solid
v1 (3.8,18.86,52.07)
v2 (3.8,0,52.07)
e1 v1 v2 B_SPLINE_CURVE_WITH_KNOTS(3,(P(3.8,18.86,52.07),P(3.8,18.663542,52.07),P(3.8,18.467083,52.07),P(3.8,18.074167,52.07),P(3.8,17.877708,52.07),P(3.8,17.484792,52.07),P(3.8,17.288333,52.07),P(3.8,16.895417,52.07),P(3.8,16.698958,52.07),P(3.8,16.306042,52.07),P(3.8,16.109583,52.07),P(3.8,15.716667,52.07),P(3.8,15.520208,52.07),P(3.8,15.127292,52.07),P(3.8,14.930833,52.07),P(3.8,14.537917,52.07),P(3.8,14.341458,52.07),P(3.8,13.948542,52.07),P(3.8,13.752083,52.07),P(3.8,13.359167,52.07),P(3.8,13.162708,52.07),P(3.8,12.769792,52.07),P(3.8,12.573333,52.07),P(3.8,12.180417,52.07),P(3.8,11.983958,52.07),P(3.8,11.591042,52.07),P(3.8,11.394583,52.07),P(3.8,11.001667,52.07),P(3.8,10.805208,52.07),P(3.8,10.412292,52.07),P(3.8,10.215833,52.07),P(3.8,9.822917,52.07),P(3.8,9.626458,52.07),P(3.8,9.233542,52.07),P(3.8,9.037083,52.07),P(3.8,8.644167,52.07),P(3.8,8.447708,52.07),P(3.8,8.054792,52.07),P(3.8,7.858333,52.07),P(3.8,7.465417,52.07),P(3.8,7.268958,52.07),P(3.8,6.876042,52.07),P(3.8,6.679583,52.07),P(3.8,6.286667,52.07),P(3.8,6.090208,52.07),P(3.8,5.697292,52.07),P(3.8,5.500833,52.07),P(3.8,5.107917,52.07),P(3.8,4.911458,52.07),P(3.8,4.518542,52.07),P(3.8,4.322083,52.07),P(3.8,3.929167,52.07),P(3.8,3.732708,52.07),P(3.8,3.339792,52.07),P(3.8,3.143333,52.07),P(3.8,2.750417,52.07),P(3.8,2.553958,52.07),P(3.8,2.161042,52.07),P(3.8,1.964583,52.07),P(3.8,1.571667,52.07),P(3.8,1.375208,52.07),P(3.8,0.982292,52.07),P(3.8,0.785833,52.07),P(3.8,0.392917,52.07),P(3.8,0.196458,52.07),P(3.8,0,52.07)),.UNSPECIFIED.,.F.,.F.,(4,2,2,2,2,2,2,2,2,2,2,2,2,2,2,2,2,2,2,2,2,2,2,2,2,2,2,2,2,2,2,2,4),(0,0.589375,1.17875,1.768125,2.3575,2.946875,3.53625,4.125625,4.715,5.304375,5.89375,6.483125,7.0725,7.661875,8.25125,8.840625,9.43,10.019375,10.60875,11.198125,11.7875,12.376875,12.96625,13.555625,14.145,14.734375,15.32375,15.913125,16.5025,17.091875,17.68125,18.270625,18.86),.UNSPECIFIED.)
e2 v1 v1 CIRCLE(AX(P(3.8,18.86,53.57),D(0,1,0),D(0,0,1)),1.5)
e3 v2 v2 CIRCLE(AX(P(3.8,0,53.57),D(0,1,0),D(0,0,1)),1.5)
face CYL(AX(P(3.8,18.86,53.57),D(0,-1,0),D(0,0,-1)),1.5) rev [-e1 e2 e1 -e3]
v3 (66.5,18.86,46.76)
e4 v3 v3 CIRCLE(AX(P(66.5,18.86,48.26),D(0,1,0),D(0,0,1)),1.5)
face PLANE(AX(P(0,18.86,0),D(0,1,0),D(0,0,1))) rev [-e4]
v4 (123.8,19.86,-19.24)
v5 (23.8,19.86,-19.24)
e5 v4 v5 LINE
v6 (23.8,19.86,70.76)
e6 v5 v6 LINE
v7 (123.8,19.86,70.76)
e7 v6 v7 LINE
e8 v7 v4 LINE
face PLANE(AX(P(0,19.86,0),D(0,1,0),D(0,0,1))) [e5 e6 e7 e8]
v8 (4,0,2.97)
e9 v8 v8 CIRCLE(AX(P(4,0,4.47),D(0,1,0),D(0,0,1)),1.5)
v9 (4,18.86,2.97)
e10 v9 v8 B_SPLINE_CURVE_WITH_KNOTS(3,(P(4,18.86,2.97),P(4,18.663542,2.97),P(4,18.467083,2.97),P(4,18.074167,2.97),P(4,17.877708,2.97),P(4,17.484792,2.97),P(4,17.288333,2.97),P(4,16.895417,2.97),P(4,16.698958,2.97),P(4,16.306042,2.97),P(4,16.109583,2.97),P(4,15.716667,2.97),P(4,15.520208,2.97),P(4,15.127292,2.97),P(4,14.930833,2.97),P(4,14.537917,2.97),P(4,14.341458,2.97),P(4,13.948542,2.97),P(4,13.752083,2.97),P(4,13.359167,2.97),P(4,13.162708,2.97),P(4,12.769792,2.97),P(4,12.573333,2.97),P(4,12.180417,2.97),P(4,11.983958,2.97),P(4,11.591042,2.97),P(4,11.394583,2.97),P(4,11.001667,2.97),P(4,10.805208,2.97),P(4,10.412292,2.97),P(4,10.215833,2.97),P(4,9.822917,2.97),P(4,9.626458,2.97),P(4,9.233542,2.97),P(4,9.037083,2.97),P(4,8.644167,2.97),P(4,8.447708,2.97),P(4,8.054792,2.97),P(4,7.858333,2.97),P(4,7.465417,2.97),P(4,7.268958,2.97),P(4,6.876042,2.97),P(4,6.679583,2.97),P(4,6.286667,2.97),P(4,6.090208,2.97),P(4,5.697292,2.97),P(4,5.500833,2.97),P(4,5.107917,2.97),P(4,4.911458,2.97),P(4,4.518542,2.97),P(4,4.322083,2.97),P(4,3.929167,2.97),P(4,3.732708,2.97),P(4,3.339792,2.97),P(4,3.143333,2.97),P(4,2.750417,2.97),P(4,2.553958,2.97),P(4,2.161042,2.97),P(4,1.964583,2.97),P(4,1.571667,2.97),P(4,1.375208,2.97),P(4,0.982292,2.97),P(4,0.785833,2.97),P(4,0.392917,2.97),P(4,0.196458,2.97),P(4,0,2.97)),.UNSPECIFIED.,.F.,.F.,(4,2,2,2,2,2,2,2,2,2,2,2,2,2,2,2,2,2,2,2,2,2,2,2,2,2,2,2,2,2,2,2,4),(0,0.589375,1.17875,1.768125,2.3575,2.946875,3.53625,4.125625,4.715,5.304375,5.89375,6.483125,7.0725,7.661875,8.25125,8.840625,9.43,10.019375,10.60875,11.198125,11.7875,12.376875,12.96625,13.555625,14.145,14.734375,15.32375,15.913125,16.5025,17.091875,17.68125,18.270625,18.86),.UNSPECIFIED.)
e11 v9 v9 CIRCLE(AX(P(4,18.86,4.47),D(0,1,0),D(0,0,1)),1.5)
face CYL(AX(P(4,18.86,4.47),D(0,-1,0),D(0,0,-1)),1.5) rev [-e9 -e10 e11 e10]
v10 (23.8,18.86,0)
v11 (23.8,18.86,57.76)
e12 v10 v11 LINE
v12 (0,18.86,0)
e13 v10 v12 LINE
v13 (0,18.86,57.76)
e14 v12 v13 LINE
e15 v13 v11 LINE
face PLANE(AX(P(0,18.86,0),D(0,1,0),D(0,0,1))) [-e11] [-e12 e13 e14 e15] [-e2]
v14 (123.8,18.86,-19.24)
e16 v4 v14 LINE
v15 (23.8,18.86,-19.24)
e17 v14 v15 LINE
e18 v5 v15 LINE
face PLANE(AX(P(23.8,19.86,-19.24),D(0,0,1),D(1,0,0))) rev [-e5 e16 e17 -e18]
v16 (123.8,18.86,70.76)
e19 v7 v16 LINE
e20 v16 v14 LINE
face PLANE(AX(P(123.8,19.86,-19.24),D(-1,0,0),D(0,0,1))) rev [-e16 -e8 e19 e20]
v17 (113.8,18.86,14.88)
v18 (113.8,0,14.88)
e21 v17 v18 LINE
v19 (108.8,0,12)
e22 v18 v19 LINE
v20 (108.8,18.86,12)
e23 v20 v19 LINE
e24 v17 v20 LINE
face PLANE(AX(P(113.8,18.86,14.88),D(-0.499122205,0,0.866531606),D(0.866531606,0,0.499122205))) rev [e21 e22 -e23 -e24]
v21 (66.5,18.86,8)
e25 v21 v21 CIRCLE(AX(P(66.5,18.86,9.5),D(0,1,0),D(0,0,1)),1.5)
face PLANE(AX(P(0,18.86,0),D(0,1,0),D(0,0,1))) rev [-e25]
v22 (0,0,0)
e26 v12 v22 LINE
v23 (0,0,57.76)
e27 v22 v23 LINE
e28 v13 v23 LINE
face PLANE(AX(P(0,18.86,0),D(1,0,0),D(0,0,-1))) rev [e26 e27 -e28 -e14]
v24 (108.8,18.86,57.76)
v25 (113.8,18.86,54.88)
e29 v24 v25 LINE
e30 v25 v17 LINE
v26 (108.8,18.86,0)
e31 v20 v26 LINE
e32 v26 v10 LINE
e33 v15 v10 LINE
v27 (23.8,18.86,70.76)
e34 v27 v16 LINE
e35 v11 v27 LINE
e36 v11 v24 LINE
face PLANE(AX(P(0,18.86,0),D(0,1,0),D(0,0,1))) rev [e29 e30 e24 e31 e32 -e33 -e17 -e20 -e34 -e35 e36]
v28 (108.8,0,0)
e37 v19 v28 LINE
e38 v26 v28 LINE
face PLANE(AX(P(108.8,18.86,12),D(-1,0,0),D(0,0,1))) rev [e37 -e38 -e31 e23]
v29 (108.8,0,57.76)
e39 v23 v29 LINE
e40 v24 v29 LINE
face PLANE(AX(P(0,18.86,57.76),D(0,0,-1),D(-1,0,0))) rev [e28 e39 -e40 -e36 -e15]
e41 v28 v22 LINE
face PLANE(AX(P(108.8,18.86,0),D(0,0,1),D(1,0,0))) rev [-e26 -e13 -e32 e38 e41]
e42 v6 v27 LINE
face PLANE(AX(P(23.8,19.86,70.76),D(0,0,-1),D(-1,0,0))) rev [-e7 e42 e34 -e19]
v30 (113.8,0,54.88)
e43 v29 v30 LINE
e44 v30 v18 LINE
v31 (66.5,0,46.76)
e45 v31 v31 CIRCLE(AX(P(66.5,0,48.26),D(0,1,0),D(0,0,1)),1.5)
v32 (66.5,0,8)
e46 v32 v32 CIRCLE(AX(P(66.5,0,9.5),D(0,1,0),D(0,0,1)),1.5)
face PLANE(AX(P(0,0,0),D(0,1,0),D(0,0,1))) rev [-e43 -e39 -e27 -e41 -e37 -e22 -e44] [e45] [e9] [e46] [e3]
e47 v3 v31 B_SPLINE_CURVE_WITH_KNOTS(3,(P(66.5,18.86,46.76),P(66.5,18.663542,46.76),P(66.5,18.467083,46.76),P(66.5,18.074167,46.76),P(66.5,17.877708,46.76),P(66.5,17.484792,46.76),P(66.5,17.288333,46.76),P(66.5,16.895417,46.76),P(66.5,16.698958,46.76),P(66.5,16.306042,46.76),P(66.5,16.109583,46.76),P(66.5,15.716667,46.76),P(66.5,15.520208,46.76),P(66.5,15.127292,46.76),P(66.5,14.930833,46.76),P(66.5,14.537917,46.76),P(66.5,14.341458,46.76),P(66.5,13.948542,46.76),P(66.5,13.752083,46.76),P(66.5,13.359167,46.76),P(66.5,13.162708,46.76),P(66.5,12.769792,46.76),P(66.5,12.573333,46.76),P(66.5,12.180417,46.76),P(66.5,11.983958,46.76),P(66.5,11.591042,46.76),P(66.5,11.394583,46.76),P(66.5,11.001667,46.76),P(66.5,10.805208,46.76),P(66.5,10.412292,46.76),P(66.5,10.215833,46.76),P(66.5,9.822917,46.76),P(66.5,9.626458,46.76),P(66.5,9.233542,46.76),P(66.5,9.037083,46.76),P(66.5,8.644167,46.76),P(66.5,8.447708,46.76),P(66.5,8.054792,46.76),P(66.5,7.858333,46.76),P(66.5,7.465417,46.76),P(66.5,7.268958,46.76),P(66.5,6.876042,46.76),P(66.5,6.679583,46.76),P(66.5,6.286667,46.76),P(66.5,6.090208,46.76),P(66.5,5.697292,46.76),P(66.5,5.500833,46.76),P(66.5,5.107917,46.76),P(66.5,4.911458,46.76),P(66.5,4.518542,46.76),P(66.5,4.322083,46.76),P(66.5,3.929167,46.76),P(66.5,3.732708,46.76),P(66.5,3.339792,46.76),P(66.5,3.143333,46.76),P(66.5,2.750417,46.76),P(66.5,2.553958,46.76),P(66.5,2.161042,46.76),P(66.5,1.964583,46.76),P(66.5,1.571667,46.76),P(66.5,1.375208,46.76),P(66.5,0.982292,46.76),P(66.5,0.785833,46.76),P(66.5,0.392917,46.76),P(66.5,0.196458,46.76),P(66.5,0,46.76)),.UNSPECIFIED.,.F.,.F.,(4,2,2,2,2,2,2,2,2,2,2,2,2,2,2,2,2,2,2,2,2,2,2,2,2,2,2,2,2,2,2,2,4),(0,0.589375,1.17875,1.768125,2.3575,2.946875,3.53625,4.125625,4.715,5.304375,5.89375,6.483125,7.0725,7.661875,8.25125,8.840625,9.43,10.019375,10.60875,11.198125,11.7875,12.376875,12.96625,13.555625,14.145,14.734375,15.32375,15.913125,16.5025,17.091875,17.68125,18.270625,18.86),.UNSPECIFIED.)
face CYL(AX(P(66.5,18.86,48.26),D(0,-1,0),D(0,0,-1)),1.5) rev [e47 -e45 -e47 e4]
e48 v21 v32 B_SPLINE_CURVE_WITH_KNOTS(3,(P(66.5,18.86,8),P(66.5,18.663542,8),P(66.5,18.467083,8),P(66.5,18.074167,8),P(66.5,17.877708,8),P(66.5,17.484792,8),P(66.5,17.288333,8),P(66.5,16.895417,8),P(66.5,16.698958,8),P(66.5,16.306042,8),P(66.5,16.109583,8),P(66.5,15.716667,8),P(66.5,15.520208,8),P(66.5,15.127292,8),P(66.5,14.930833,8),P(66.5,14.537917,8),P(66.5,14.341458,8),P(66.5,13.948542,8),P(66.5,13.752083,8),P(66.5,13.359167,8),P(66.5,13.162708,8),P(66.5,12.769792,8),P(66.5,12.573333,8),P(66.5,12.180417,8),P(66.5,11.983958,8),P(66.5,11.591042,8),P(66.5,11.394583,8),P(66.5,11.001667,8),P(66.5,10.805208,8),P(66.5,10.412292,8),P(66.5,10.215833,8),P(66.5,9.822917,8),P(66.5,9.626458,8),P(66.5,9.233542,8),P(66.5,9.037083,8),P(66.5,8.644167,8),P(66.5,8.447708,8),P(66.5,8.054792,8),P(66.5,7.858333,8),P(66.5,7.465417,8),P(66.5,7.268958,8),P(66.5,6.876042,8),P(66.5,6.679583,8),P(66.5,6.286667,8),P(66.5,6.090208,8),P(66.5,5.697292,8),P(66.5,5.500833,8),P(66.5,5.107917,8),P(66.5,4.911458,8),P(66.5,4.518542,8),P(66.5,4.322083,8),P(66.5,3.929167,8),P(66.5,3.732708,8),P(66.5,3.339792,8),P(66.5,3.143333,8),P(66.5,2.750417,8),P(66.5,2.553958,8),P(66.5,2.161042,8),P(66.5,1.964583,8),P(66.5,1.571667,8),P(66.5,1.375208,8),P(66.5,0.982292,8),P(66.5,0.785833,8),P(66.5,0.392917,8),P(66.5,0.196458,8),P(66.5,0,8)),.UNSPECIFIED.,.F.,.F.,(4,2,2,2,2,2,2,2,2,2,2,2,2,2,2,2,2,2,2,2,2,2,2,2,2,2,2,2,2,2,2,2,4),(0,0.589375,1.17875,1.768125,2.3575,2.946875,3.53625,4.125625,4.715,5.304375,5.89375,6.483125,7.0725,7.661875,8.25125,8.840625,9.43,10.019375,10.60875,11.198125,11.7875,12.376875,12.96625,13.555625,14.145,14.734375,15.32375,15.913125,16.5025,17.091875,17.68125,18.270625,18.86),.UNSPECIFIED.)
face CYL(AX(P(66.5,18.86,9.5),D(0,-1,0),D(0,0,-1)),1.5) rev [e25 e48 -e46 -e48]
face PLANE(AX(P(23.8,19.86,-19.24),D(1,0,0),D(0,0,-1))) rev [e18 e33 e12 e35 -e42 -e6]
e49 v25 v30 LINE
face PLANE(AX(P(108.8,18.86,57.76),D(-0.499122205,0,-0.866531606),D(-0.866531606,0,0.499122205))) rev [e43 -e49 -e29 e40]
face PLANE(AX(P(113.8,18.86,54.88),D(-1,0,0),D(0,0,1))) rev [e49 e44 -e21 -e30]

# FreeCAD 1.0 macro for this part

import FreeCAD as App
import Part
import Sketcher

V = App.Vector


def add_polygon(sketch, points):
    """Adds a closed chain of lines whose ends are joined by coincident constraints."""
    first, n = sketch.GeometryCount, len(points)
    for a, b in zip(points, points[1:] + points[:1]):
        sketch.addGeometry(Part.LineSegment(App.Vector(*a, 0), App.Vector(*b, 0)), False)
    for i in range(n):
        sketch.addConstraint(Sketcher.Constraint("Coincident", first + i, 2, first + (i + 1) % n, 1))

doc = App.newDocument("Part")
body = doc.addObject("PartDesign::Body", "Body")

# Sketch on XZ plane
sketch1 = body.newObject("Sketcher::SketchObject", "Sketch")
sketch1.AttachmentSupport = (doc.getObject("XZ_Plane"), [""])
sketch1.MapMode = "FlatFace"
add_polygon(sketch1, [(0, 0), (0, 57.8), (108.8, 57.8), (113.8, 54.9), (113.8, 14.9), (108.8, 12), (108.8, 0)])  # lines 0-6
sketch1.addGeometry(Part.Circle(V(3.8, 53.6, 0), V(0, 0, 1), 1.5), False)  # 7
sketch1.addGeometry(Part.Circle(V(66.5, 48.3, 0), V(0, 0, 1), 1.5), False)  # 8
sketch1.addGeometry(Part.Circle(V(4, 4.5, 0), V(0, 0, 1), 1.5), False)  # 9
sketch1.addGeometry(Part.Circle(V(66.5, 9.5, 0), V(0, 0, 1), 1.5), False)  # 10
sketch1.addConstraint(Sketcher.Constraint("Vertical", 0))
sketch1.addConstraint(Sketcher.Constraint("Horizontal", 1))
sketch1.addConstraint(Sketcher.Constraint("Vertical", 3))
sketch1.addConstraint(Sketcher.Constraint("Vertical", 5))
sketch1.addConstraint(Sketcher.Constraint("Horizontal", 6))
sketch1.addConstraint(Sketcher.Constraint("Coincident", 6, 2, -1, 1))
sketch1.addConstraint(Sketcher.Constraint("Equal", 7, 8))
sketch1.addConstraint(Sketcher.Constraint("Equal", 8, 9))
sketch1.addConstraint(Sketcher.Constraint("Equal", 9, 10))
sketch1.addConstraint(Sketcher.Constraint("Vertical", 8, 3, 10, 3))
sketch1.addConstraint(Sketcher.Constraint("Vertical", 1, 2, 4, 2))
sketch1.addConstraint(Sketcher.Constraint("Equal", 2, 4))
sketch1.addConstraint(Sketcher.Constraint("Diameter", 7, 3.0))
sketch1.addConstraint(Sketcher.Constraint("DistanceY", 3, 2, 3, 1, 40.0))
sketch1.addConstraint(Sketcher.Constraint("DistanceY", 5, 2, 5, 1, 12.0))
sketch1.addConstraint(Sketcher.Constraint("DistanceX", 1, 1, 1, 2, 108.8))
sketch1.addConstraint(Sketcher.Constraint("DistanceX", -1, 1, 9, 3, 4.0))
sketch1.addConstraint(Sketcher.Constraint("DistanceX", 7, 3, 1, 2, 105.0))
sketch1.addConstraint(Sketcher.Constraint("DistanceX", 1, 2, 2, 2, 5.0))
sketch1.addConstraint(Sketcher.Constraint("DistanceY", 0, 1, 0, 2, 57.76))
sketch1.addConstraint(Sketcher.Constraint("DistanceX", -1, 1, 8, 3, 66.5))
sketch1.addConstraint(Sketcher.Constraint("DistanceY", -1, 1, 10, 3, 9.5))
sketch1.addConstraint(Sketcher.Constraint("DistanceY", 9, 3, 7, 3, 49.1))
sketch1.addConstraint(Sketcher.Constraint("DistanceY", 8, 3, 0, 2, 9.5))
sketch1.addConstraint(Sketcher.Constraint("DistanceY", -1, 1, 7, 3, 53.57))
pad1 = body.newObject("PartDesign::Pad", "Pad")
pad1.Profile = sketch1
pad1.Length = 18.86
pad1.Reversed = True

# Sketch on XZ plane
sketch2 = body.newObject("Sketcher::SketchObject", "Sketch001")
sketch2.AttachmentSupport = (doc.getObject("XZ_Plane"), [""])
sketch2.MapMode = "FlatFace"
sketch2.AttachmentOffset = App.Placement(V(0, 0, -18.86), App.Rotation())
add_polygon(sketch2, [(24, -19), (24, 71), (124, 71), (124, -19)])  # lines 0-3
sketch2.addConstraint(Sketcher.Constraint("Vertical", 0))
sketch2.addConstraint(Sketcher.Constraint("Horizontal", 1))
sketch2.addConstraint(Sketcher.Constraint("Vertical", 2))
sketch2.addConstraint(Sketcher.Constraint("Horizontal", 3))
sketch2.addConstraint(Sketcher.Constraint("DistanceX", 1, 1, 1, 2, 100.0))
sketch2.addConstraint(Sketcher.Constraint("DistanceY", 0, 1, 0, 2, 90.0))
sketch2.addConstraint(Sketcher.Constraint("DistanceX", -1, 1, 0, 2, 23.8))
sketch2.addConstraint(Sketcher.Constraint("DistanceY", -1, 1, 0, 2, 70.76))
pad2 = body.newObject("PartDesign::Pad", "Pad001")
pad2.Profile = sketch2
pad2.Length = 1
pad2.Reversed = True

doc.recompute()
